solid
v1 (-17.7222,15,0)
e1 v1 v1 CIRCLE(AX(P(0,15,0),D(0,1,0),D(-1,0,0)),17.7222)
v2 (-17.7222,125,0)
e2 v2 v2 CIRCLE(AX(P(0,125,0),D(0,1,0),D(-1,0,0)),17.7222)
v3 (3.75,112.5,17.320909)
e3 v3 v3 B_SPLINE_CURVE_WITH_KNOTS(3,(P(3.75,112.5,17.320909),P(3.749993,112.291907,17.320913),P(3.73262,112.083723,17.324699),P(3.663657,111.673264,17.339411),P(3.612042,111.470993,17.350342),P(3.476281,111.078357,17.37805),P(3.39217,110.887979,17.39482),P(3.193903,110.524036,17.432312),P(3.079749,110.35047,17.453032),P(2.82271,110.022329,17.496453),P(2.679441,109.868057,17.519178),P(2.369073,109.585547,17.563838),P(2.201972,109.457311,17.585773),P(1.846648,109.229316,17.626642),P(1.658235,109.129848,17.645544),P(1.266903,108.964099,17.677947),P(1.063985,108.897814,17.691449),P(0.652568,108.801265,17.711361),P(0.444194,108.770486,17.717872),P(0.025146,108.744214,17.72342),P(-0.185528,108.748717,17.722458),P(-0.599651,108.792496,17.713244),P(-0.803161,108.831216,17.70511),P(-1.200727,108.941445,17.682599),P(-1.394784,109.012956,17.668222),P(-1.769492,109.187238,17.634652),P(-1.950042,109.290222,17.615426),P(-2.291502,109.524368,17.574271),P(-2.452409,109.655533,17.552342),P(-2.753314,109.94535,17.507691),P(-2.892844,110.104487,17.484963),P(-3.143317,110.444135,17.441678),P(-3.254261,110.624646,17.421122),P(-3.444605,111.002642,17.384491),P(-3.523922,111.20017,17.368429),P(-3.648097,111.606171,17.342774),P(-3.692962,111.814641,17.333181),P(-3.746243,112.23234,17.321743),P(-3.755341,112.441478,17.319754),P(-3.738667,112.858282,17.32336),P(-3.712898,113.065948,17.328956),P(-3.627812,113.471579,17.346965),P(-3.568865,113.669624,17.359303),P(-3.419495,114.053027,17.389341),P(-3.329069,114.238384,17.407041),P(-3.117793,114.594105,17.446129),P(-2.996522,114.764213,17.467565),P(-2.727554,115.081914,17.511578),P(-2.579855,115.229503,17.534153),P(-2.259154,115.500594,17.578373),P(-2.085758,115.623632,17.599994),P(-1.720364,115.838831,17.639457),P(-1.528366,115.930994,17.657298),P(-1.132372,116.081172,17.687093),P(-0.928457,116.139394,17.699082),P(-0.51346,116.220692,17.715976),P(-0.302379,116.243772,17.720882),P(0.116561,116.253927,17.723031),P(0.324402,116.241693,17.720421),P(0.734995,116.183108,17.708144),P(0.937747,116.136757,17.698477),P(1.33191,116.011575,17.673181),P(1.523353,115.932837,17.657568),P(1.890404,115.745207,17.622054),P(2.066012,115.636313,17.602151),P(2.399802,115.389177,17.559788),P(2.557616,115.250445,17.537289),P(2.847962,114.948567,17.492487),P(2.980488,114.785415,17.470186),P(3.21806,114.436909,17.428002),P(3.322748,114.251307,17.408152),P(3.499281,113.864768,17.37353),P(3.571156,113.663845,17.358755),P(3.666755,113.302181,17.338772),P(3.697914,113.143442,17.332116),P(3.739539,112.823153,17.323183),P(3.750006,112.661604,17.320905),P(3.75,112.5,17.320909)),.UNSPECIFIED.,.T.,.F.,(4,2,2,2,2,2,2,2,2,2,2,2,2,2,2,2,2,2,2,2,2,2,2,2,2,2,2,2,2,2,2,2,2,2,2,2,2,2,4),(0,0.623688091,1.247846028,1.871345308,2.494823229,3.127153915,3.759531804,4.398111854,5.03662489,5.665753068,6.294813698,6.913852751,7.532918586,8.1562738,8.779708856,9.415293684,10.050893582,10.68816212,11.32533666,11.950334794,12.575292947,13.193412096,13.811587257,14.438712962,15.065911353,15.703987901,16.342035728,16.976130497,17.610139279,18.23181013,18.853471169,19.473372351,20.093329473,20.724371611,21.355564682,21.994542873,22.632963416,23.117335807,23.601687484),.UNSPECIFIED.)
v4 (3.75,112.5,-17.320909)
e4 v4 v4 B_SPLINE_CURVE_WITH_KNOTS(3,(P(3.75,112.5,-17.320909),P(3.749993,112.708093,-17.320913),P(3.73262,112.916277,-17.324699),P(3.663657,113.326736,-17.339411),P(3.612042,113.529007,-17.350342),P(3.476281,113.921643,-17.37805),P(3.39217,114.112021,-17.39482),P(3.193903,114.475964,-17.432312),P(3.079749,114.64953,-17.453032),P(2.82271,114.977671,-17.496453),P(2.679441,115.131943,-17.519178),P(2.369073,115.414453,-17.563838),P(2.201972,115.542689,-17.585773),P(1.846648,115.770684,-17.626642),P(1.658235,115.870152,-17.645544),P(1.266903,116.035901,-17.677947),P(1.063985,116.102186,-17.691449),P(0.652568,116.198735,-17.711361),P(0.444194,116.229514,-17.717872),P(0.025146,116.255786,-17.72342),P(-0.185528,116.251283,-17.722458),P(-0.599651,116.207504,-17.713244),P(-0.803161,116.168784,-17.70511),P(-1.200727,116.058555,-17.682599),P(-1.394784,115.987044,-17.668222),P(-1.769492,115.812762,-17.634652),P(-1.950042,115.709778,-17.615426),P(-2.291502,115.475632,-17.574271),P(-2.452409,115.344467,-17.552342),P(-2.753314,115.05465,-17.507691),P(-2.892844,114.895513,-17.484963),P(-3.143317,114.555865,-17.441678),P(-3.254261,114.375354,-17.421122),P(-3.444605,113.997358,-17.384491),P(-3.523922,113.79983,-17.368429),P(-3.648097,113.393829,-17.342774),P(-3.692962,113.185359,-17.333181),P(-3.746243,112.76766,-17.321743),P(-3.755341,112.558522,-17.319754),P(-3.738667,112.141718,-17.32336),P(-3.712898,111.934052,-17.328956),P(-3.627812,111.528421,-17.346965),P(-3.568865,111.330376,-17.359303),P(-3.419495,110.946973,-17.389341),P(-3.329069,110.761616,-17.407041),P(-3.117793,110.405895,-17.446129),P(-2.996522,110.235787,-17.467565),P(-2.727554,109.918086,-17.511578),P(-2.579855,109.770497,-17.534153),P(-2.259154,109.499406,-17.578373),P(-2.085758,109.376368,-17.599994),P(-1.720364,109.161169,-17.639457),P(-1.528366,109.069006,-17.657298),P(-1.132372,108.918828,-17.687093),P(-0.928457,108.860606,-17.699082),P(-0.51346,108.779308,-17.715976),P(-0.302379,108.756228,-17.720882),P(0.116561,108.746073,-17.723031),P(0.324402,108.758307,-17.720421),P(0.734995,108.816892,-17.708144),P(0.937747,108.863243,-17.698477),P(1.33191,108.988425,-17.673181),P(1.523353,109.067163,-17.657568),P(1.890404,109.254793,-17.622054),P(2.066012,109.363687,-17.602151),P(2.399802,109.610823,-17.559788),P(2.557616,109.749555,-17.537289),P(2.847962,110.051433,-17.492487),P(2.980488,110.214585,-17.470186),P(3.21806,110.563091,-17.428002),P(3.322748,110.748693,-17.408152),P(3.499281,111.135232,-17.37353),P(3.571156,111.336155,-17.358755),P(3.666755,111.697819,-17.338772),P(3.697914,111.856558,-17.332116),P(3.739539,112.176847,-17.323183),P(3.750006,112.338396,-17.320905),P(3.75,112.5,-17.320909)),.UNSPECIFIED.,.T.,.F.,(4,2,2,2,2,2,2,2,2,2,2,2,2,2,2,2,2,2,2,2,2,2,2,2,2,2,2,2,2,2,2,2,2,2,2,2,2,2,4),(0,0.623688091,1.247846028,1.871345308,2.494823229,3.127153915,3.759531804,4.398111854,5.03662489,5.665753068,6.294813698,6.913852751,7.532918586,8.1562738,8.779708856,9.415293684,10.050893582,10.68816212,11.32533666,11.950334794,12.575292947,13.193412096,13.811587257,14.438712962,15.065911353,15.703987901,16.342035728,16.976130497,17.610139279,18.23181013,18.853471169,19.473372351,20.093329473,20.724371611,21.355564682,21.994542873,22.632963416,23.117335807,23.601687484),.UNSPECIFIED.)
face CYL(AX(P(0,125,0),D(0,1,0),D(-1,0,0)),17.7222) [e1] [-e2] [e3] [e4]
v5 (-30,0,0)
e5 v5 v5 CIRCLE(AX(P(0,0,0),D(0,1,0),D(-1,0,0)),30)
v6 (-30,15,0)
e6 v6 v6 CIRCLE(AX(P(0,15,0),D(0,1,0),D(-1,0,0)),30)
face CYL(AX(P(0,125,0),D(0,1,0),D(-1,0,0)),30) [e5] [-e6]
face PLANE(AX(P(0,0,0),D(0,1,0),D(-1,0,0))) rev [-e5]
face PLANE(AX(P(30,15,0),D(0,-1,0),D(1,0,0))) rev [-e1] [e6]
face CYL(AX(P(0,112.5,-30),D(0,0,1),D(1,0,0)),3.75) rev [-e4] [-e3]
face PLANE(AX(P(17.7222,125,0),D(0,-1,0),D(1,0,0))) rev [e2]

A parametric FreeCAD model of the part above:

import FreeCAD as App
import Part
import Sketcher
from FreeCAD import Vector

doc = App.newDocument("Part")
params = doc.addObject("Spreadsheet::Sheet", "Params")
for row, (alias, value) in enumerate([
    ("sketch1_width", "30 mm"),
    ("sketch1_height", "15 mm"),
    ("sketch1_height2", "110 mm"),
    ("revolution_angle", "360 deg"),
    ("sketch2_diameter", "7.5 mm"),
], start=1):
    params.set(f"A{row}", alias)
    params.set(f"B{row}", "=" + value)
    params.setAlias(f"B{row}", alias)

body = doc.addObject("PartDesign::Body", "Body")

# Sketch on XY plane
sketch1 = body.newObject("Sketcher::SketchObject", "Sketch")
sketch1.AttachmentSupport = (doc.getObject("XY_Plane"), [""])
sketch1.MapMode = "FlatFace"
sketch1.addGeometry([
    Part.LineSegment(Vector(0, 0, 0), Vector(30, 0, 0)),  # 0
    Part.LineSegment(Vector(30, 0, 0), Vector(30, 15, 0)),  # 1
    Part.LineSegment(Vector(30, 15, 0), Vector(18, 15, 0)),  # 2
    Part.LineSegment(Vector(18, 15, 0), Vector(18, 125, 0)),  # 3
    Part.LineSegment(Vector(18, 125, 0), Vector(0, 125, 0)),  # 4
    Part.LineSegment(Vector(0, 125, 0), Vector(0, 0, 0)),  # 5
], False)
sketch1.addConstraint([
    Sketcher.Constraint("Coincident", 0, 2, 1, 1),
    Sketcher.Constraint("Coincident", 1, 2, 2, 1),
    Sketcher.Constraint("Coincident", 2, 2, 3, 1),
    Sketcher.Constraint("Coincident", 3, 2, 4, 1),
    Sketcher.Constraint("Coincident", 4, 2, 5, 1),
    Sketcher.Constraint("Coincident", 5, 2, 0, 1),
    Sketcher.Constraint("Horizontal", 0),
    Sketcher.Constraint("Vertical", 1),
    Sketcher.Constraint("Horizontal", 2),
    Sketcher.Constraint("Vertical", 3),
    Sketcher.Constraint("Horizontal", 4),
    Sketcher.Constraint("Vertical", 5),
    Sketcher.Constraint("Coincident", 5, 2, -1, 1),
    Sketcher.Constraint("DistanceX", 0, 1, 0, 2, 30.0),
    Sketcher.Constraint("DistanceY", 1, 1, 1, 2, 15.0),
    Sketcher.Constraint("DistanceY", 3, 1, 3, 2, 110.0),
    Sketcher.Constraint("DistanceX", 2, 2, 2, 1, 12.2778),
])
sketch1.setExpression("Constraints[13]", "Params.sketch1_width")
sketch1.setExpression("Constraints[14]", "Params.sketch1_height")
sketch1.setExpression("Constraints[15]", "Params.sketch1_height2")
revolution = body.newObject("PartDesign::Revolution", "Revolution")
revolution.Profile = sketch1
revolution.ReferenceAxis = (sketch1, ["V_Axis"])
revolution.setExpression("Angle", "Params.revolution_angle")

# Sketch on XY plane
sketch2 = body.newObject("Sketcher::SketchObject", "Sketch001")
sketch2.AttachmentSupport = (doc.getObject("XY_Plane"), [""])
sketch2.MapMode = "FlatFace"
sketch2.addGeometry(Part.Circle(Vector(0, 112.5, 0), Vector(0, 0, 1), 3.8), False)
sketch2.addConstraint([
    Sketcher.Constraint("PointOnObject", 0, 3, -2),
    Sketcher.Constraint("Diameter", 0, 7.5),
    Sketcher.Constraint("DistanceY", -1, 1, 0, 3, 112.5),
])
sketch2.setExpression("Constraints[1]", "Params.sketch2_diameter")
pocket1 = body.newObject("PartDesign::Pocket", "Pocket")
pocket1.Profile = sketch2
pocket1.Type = "ThroughAll"
pocket1.Midplane = True

doc.recompute()
